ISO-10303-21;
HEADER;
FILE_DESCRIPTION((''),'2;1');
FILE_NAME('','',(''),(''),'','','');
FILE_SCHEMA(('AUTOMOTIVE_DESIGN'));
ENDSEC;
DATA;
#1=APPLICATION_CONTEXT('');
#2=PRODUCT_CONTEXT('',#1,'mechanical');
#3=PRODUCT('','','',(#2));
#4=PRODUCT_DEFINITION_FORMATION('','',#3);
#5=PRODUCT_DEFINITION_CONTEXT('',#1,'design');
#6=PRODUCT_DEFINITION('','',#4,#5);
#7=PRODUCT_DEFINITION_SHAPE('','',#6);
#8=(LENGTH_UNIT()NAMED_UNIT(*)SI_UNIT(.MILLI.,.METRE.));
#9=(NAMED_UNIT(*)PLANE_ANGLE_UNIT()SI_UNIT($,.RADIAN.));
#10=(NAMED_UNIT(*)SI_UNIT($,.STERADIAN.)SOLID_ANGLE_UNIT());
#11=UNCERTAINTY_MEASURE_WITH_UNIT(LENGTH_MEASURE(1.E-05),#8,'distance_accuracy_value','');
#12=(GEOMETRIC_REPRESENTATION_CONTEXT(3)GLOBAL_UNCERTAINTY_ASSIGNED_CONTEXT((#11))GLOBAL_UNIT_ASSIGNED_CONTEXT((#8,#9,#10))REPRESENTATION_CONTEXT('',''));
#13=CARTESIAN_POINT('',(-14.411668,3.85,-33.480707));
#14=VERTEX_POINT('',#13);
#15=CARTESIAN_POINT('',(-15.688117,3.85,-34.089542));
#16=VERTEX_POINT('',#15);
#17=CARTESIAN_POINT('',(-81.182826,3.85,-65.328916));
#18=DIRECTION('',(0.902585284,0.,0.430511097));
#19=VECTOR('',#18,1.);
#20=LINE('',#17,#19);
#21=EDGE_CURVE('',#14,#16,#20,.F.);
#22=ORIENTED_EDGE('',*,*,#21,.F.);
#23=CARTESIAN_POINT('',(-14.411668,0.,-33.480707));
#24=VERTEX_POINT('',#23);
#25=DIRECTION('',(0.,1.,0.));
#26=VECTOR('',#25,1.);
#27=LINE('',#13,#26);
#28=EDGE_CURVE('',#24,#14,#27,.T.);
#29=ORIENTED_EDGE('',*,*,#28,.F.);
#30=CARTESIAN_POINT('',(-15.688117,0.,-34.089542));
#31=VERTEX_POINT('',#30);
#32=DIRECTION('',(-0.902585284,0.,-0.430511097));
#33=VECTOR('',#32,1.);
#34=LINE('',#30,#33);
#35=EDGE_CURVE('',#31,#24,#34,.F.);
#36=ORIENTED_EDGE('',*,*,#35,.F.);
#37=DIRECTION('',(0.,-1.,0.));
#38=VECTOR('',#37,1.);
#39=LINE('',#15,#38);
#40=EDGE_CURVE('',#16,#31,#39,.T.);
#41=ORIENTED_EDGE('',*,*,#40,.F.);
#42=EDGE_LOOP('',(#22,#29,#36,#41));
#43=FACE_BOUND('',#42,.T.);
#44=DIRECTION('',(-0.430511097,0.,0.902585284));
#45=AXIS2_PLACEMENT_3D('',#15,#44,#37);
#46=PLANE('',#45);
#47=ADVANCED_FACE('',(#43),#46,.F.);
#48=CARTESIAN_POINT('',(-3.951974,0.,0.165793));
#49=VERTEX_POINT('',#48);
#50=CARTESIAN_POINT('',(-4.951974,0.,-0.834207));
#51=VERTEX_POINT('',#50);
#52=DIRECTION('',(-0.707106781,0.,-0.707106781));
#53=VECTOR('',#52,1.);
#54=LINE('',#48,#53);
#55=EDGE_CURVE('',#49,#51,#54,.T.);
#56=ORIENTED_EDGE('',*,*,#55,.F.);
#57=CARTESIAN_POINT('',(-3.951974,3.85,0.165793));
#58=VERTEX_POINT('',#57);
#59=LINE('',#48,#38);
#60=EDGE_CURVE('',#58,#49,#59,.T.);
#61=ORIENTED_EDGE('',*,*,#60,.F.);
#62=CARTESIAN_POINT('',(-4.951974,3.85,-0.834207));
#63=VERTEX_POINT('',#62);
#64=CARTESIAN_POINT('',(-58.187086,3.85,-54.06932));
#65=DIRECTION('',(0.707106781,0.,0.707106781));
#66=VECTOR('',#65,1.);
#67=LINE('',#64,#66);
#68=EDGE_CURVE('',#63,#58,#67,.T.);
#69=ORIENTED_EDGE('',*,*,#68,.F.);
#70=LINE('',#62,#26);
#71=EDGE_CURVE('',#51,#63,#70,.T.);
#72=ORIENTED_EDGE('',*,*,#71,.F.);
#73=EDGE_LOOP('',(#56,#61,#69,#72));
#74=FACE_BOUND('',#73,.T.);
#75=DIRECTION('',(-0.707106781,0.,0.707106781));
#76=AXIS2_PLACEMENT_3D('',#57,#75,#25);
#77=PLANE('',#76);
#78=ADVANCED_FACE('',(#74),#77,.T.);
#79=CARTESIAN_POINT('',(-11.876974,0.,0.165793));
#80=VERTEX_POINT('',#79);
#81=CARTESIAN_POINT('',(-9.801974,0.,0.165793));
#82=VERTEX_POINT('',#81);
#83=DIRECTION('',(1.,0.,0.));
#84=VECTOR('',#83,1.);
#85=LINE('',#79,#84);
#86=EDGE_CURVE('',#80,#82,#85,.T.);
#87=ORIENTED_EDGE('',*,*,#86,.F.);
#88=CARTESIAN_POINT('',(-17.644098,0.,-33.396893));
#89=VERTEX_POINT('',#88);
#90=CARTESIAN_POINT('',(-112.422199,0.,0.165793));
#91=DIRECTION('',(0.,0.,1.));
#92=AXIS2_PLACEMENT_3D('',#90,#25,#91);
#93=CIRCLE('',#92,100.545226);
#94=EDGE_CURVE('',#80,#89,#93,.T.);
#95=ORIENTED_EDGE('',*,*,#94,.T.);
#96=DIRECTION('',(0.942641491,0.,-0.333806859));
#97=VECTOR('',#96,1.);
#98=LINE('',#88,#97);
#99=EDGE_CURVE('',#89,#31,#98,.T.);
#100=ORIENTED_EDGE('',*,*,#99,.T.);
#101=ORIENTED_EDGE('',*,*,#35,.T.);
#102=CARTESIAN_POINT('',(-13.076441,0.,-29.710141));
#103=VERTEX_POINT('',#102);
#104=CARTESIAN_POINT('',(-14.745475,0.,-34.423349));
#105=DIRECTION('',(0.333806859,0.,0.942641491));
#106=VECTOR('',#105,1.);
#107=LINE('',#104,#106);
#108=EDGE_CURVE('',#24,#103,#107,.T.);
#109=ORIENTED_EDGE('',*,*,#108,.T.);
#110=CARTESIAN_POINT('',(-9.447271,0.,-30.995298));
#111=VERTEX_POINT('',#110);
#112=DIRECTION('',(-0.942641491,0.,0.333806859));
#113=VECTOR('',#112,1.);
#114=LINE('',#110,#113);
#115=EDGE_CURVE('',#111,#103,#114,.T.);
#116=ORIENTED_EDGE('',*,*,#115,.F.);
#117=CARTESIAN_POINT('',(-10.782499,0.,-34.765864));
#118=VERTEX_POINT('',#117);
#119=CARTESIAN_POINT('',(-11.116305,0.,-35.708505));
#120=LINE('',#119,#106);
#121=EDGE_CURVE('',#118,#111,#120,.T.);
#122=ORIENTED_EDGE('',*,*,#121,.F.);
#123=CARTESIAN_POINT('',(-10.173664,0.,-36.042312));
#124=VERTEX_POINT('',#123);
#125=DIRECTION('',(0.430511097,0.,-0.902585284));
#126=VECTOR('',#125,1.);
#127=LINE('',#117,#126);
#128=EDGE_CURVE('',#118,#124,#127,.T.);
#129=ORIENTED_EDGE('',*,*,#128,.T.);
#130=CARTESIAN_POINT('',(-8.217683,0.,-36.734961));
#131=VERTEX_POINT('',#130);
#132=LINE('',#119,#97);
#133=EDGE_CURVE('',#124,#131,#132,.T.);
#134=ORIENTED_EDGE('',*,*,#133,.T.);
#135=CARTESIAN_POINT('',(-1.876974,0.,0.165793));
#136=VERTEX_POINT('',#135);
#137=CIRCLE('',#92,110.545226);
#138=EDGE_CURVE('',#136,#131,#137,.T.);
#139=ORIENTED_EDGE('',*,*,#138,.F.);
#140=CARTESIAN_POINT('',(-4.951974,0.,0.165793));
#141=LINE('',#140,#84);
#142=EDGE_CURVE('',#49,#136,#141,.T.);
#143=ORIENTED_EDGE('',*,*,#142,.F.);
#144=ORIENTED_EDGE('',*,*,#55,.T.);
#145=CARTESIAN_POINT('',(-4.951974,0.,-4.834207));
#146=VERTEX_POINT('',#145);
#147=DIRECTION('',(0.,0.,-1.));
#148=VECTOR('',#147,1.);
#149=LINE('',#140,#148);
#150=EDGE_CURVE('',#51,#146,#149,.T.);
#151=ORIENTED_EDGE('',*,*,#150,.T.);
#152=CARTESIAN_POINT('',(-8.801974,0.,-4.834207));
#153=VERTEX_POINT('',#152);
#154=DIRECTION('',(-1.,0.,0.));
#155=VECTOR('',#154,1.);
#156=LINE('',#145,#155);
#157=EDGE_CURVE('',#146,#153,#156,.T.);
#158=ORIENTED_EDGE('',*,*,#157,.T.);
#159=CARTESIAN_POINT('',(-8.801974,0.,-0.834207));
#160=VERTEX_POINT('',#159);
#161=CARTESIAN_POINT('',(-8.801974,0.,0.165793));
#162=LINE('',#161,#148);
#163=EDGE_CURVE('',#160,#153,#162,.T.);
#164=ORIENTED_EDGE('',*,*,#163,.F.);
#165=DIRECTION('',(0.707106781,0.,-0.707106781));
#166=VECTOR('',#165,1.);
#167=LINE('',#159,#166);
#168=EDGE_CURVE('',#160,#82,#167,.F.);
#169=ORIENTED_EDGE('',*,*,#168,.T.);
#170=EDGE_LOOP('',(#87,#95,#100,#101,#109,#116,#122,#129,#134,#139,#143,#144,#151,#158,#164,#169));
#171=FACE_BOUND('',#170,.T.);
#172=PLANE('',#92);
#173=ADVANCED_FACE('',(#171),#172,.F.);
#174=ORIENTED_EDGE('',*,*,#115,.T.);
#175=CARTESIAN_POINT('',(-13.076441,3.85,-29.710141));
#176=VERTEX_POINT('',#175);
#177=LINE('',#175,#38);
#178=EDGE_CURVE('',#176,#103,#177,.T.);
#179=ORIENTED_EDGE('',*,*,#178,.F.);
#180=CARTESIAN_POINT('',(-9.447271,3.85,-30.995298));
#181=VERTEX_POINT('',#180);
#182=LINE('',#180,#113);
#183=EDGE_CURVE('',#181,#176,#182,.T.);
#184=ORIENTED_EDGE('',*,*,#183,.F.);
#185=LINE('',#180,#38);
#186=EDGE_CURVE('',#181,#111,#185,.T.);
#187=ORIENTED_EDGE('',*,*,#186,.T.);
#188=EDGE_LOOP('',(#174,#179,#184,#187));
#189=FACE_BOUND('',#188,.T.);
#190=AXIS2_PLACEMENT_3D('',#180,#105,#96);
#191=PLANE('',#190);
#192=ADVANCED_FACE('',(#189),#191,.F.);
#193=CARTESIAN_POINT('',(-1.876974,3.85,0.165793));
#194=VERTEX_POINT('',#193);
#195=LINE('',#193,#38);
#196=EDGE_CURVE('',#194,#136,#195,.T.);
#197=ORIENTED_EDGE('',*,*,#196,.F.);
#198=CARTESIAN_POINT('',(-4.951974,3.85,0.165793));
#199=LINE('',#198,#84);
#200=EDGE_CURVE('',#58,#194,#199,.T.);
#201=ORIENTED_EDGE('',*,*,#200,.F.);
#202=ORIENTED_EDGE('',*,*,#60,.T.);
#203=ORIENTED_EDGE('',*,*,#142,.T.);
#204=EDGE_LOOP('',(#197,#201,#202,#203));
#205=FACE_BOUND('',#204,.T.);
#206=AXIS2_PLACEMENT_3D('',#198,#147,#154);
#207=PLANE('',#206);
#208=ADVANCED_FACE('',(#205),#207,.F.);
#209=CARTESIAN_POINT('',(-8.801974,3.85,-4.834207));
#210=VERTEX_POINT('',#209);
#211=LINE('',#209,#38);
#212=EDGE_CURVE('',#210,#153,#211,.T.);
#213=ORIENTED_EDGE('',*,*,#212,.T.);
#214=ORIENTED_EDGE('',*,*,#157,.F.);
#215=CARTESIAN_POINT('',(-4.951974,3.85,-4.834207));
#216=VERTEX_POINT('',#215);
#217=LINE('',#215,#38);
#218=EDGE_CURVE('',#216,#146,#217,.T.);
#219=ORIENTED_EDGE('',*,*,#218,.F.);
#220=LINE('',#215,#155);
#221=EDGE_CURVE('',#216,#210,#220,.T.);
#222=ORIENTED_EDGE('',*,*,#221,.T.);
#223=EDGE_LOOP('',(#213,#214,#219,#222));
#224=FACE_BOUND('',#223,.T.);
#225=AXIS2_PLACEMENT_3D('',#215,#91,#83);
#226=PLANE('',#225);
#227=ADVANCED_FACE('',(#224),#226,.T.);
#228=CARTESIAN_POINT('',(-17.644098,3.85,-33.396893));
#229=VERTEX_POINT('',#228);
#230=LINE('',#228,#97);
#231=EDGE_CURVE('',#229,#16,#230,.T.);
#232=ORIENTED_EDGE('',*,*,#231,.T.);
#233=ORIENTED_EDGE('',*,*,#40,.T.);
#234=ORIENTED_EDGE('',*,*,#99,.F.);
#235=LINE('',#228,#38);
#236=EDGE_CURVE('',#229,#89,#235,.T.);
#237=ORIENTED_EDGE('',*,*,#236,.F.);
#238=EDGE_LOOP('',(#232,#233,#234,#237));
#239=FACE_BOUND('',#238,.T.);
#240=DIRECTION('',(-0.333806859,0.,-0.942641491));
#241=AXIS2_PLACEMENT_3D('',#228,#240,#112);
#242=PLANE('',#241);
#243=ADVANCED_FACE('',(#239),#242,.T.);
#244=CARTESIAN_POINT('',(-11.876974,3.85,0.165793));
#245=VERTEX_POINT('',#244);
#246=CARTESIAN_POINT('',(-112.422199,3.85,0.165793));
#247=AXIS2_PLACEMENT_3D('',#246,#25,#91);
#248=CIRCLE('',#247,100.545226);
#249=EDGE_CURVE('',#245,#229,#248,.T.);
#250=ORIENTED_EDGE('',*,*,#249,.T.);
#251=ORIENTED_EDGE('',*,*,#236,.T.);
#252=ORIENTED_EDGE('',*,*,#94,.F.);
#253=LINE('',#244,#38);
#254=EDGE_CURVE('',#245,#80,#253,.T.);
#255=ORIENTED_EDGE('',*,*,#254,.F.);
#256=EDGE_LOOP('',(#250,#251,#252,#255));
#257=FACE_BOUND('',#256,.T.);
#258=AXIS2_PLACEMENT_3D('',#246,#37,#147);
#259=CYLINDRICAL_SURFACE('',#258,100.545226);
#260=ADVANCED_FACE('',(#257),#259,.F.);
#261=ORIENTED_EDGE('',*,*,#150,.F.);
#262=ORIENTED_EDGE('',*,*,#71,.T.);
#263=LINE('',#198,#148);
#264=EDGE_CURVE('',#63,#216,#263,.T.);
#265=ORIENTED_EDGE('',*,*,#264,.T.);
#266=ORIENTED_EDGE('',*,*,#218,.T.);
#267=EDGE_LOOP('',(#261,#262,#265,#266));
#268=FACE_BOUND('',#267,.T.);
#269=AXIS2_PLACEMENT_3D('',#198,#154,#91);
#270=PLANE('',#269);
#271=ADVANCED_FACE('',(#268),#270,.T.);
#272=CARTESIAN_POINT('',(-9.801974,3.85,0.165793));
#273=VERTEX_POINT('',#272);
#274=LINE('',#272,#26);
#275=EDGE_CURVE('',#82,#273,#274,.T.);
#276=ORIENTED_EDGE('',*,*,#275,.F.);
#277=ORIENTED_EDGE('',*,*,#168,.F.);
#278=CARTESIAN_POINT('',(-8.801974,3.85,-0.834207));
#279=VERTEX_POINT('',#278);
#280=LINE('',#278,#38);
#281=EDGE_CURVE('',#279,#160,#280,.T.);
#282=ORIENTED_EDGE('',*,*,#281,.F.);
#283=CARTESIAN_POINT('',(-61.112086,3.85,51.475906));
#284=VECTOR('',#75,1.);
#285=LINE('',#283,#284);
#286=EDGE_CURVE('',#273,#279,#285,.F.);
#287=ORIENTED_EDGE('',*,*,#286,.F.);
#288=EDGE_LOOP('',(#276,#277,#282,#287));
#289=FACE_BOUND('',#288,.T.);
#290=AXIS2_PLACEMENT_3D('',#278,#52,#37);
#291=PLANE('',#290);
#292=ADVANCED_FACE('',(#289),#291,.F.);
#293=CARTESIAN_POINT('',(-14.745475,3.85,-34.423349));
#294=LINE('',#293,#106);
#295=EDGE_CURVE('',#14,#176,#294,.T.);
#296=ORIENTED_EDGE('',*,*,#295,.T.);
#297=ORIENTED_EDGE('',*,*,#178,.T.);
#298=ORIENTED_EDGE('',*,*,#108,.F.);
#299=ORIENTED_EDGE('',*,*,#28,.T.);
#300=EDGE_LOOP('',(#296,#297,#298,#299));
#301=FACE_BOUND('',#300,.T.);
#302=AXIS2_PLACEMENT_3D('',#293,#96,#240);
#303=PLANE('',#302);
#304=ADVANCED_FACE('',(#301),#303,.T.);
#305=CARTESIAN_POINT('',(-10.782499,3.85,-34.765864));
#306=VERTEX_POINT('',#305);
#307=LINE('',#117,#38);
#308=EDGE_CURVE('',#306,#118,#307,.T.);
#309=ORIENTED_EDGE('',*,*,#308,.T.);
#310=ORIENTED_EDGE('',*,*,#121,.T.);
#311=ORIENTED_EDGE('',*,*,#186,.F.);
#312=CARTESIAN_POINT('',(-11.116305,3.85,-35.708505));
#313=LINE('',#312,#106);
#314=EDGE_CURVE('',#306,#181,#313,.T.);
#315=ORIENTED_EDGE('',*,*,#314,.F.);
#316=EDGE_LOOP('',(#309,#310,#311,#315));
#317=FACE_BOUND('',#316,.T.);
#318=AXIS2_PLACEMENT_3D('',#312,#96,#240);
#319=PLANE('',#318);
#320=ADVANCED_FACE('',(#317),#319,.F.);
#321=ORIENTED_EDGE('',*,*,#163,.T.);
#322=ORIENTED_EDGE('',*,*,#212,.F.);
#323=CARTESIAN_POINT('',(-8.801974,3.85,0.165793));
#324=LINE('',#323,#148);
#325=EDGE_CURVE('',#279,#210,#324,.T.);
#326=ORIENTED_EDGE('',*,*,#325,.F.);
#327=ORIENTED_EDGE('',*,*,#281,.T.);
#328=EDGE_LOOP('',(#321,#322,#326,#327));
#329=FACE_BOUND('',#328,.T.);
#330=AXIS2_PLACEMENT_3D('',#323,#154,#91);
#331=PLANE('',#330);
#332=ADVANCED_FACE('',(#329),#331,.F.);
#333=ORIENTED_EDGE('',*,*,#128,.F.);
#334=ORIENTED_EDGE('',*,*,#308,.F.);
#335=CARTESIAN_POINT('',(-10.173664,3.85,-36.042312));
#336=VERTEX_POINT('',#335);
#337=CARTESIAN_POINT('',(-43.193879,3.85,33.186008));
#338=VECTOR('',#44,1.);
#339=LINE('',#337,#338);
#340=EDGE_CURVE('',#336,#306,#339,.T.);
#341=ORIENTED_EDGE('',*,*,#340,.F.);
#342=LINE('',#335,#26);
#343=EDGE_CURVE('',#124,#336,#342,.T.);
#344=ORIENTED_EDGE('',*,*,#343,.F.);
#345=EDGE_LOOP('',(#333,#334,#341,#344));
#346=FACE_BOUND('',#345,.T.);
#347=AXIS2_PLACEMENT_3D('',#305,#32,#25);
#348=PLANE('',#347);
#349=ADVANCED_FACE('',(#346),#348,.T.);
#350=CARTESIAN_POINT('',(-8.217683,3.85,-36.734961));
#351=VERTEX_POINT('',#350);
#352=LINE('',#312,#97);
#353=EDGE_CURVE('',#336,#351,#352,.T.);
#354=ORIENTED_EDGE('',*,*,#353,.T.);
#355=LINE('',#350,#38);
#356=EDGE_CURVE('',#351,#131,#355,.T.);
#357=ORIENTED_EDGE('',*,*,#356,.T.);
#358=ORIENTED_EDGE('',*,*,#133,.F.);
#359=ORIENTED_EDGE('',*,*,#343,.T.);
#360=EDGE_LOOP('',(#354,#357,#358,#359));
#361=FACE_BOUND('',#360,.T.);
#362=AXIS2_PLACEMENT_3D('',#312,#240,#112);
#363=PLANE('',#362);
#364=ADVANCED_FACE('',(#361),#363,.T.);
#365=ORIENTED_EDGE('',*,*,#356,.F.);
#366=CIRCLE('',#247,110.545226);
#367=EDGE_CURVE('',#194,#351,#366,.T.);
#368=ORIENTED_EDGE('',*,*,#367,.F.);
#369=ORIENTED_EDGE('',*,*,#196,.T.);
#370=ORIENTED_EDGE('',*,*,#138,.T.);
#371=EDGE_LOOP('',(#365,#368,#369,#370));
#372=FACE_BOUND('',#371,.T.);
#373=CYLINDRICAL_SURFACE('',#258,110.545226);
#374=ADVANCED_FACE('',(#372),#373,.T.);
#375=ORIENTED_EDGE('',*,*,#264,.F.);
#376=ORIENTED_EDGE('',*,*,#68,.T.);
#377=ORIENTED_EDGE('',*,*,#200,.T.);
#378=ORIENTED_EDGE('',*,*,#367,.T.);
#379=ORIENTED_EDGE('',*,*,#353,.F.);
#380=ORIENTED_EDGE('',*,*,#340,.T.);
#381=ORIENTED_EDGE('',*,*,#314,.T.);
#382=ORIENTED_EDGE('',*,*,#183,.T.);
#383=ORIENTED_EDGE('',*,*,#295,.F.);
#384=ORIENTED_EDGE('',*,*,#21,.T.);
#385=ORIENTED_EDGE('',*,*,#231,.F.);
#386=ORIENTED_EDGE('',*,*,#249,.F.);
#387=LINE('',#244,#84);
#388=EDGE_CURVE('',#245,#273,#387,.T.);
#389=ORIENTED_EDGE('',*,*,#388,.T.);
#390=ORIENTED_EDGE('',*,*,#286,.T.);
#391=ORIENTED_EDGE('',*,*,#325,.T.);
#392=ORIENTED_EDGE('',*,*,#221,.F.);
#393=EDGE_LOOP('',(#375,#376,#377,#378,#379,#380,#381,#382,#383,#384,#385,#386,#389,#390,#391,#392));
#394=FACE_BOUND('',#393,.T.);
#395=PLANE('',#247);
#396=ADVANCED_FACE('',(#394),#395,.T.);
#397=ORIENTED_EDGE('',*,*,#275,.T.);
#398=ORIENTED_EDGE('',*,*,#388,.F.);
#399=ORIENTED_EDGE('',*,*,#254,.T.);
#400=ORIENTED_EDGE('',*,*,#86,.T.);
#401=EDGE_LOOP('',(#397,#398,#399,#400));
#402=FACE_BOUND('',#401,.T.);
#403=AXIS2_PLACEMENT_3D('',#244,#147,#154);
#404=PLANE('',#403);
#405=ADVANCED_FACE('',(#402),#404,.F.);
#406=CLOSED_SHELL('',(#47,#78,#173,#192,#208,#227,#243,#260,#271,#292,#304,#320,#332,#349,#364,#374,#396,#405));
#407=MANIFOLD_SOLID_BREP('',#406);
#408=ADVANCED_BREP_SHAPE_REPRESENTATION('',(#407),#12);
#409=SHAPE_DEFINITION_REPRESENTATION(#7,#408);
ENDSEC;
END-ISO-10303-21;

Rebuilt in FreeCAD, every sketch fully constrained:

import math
import FreeCAD as App
import Part
import Sketcher

V = App.Vector
Q = App.Units.Quantity


def edges_at(feature, points):
    """Names of the edges that pass closest to the given points."""
    edges = feature.Shape.Edges
    near = lambda p: min(range(len(edges)), key=lambda i: edges[i].distToShape(Part.Vertex(*p))[0])
    return sorted({f"Edge{near(p) + 1}" for p in points})

doc = App.newDocument("Part")
body = doc.addObject("PartDesign::Body", "Body")

# Sketch on XZ plane
sketch1 = body.newObject("Sketcher::SketchObject", "Sketch")
sketch1.AttachmentSupport = (doc.getObject("XZ_Plane"), [""])
sketch1.MapMode = "FlatFace"
sketch1.addGeometry([
    Part.LineSegment(V(-14.7, -34.4, 0), V(-17.6, -33.4, 0)),  # 0
    Part.ArcOfCircle(Part.Circle(V(-112.4, 0.2, 0), V(0, 0, 1), 100.5), math.radians(-19.5), math.radians(0)),  # 1
    Part.LineSegment(V(-11.9, 0.2, 0), V(-8.8, 0.2, 0)),  # 2
    Part.LineSegment(V(-8.8, 0.2, 0), V(-8.8, -4.8, 0)),  # 3
    Part.LineSegment(V(-8.8, -4.8, 0), V(-5, -4.8, 0)),  # 4
    Part.LineSegment(V(-5, -4.8, 0), V(-5, 0.2, 0)),  # 5
    Part.LineSegment(V(-5, 0.2, 0), V(-1.9, 0.2, 0)),  # 6
    Part.ArcOfCircle(Part.Circle(V(-112.4, 0.2, 0), V(0, 0, 1), 110.5), math.radians(-19.5), math.radians(0)),  # 7
    Part.LineSegment(V(-8.2, -36.7, 0), V(-11.1, -35.7, 0)),  # 8
    Part.LineSegment(V(-11.1, -35.7, 0), V(-9.4, -31, 0)),  # 9
    Part.LineSegment(V(-9.4, -31, 0), V(-13.1, -29.7, 0)),  # 10
    Part.LineSegment(V(-13.1, -29.7, 0), V(-14.7, -34.4, 0)),  # 11
], False)
sketch1.addConstraint([
    Sketcher.Constraint("Coincident", 0, 2, 1, 1),
    Sketcher.Constraint("Coincident", 1, 2, 2, 1),
    Sketcher.Constraint("Coincident", 2, 2, 3, 1),
    Sketcher.Constraint("Coincident", 3, 2, 4, 1),
    Sketcher.Constraint("Coincident", 4, 2, 5, 1),
    Sketcher.Constraint("Coincident", 5, 2, 6, 1),
    Sketcher.Constraint("Coincident", 6, 2, 7, 2),
    Sketcher.Constraint("Coincident", 7, 1, 8, 1),
    Sketcher.Constraint("Coincident", 8, 2, 9, 1),
    Sketcher.Constraint("Coincident", 9, 2, 10, 1),
    Sketcher.Constraint("Coincident", 10, 2, 11, 1),
    Sketcher.Constraint("Coincident", 11, 2, 0, 1),
    Sketcher.Constraint("Horizontal", 2),
    Sketcher.Constraint("Vertical", 3),
    Sketcher.Constraint("Horizontal", 4),
    Sketcher.Constraint("Vertical", 5),
    Sketcher.Constraint("Horizontal", 6),
    Sketcher.Constraint("Coincident", 7, 3, 1, 3),
    Sketcher.Constraint("Parallel", 0, 8),
    Sketcher.Constraint("Perpendicular", 8, 9),
    Sketcher.Constraint("Perpendicular", 9, 10),
    Sketcher.Constraint("Perpendicular", 10, 11),
    Sketcher.Constraint("Horizontal", 7, 3, 1, 2),
    Sketcher.Constraint("Horizontal", 2, 2, 5, 2),
    Sketcher.Constraint("Equal", 2, 6),
    Sketcher.Constraint("Equal", 0, 8),
    Sketcher.Constraint("Equal", 9, 11),
    Sketcher.Constraint("DistanceY", 3, 2, 3, 1, Q("5 mm")),
    Sketcher.Constraint("Distance", 9, Q("5 mm")),
    Sketcher.Constraint("Angle", 0, Q("160.5 deg")),
    Sketcher.Constraint("DistanceX", 1, 2, 6, 2, Q("10 mm")),
    Sketcher.Constraint("DistanceX", 4, 1, 4, 2, Q("3.85 mm")),
    Sketcher.Constraint("Distance", 10, Q("3.85 mm")),
    Sketcher.Constraint("Radius", 1, Q("100.545226 mm")),
    Sketcher.Constraint("DistanceX", 1, 3, -1, 1, Q("112.422199 mm")),
    Sketcher.Constraint("DistanceX", 7, 3, 0, 2, Q("94.778102 mm")),
    Sketcher.Constraint("DistanceY", 7, 1, -1, 1, Q("36.734961 mm")),
])
pad1 = body.newObject("PartDesign::Pad", "Pad")
pad1.Profile = sketch1
pad1.Length = 3.85
pad1.Reversed = True
doc.recompute()

chamfer = body.newObject("PartDesign::Chamfer", "Chamfer")
chamfer.Base = (pad1, edges_at(pad1, [
    (-14.745, 1.925, -34.423),
    (-11.116, 1.925, -35.709),
    (-4.952, 1.925, 0.166),
    (-8.802, 1.925, 0.166),
]))
chamfer.Size = 1

doc.recompute()
